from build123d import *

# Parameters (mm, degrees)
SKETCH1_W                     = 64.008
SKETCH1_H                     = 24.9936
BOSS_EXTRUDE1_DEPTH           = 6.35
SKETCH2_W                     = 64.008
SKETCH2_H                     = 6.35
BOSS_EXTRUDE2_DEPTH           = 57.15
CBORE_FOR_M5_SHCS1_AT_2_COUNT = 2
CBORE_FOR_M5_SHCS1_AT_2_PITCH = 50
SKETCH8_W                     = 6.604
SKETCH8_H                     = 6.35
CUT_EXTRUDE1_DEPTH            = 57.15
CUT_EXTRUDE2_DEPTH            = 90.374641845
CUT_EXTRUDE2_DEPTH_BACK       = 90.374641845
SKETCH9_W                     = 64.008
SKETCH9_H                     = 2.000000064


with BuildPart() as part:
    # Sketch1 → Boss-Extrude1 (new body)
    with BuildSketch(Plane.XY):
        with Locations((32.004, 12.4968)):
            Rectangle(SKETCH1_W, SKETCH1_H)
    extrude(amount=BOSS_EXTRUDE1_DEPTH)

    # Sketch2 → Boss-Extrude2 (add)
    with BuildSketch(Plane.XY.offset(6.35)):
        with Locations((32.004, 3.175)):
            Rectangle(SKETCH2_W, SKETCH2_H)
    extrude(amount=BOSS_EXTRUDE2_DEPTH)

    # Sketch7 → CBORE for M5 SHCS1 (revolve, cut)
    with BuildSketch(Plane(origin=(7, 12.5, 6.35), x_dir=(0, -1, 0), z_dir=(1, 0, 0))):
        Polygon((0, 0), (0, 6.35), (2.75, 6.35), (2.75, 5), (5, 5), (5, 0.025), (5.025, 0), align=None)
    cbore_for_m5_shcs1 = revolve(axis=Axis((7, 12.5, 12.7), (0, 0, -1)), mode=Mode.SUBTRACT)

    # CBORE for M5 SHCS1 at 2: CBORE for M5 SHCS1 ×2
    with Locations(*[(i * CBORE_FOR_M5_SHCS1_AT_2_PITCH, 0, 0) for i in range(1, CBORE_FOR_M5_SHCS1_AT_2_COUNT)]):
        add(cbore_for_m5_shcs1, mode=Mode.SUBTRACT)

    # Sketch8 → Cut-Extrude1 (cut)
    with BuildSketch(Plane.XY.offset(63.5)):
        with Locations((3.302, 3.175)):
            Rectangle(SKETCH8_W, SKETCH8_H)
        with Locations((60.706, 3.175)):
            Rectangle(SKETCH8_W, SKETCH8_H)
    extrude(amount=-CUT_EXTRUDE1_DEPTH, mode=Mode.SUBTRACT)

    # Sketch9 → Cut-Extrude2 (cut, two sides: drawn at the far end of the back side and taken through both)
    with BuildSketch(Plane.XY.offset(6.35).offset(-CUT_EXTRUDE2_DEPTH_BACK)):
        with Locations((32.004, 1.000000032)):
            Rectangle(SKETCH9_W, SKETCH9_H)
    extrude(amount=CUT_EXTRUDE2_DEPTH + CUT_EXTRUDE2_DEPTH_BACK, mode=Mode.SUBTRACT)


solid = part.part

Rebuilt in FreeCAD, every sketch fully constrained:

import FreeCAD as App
import Part
import Sketcher
Q = App.Units.Quantity

doc = App.newDocument("Part")
body = doc.addObject("PartDesign::Body", "Body")

# Sketch on XY plane
sketch1 = body.newObject("Sketcher::SketchObject", "Sketch")
sketch1.AttachmentSupport = (doc.getObject("XY_Plane"), [""])
sketch1.MapMode = "FlatFace"
sketch1.addGeometry(Part.LineSegment(App.Vector(0, 25, 0), App.Vector(0, 0, 0)), False)
sketch1.addGeometry(Part.LineSegment(App.Vector(0, 0, 0), App.Vector(64, 0, 0)), False)
sketch1.addGeometry(Part.LineSegment(App.Vector(64, 0, 0), App.Vector(64, 25, 0)), False)
sketch1.addGeometry(Part.LineSegment(App.Vector(64, 25, 0), App.Vector(0, 25, 0)), False)
sketch1.addConstraint(Sketcher.Constraint("Coincident", 0, 2, 1, 1))
sketch1.addConstraint(Sketcher.Constraint("Coincident", 1, 2, 2, 1))
sketch1.addConstraint(Sketcher.Constraint("Coincident", 2, 2, 3, 1))
sketch1.addConstraint(Sketcher.Constraint("Coincident", 3, 2, 0, 1))
sketch1.addConstraint(Sketcher.Constraint("Vertical", 0))
sketch1.addConstraint(Sketcher.Constraint("Horizontal", 1))
sketch1.addConstraint(Sketcher.Constraint("Vertical", 2))
sketch1.addConstraint(Sketcher.Constraint("Horizontal", 3))
sketch1.addConstraint(Sketcher.Constraint("Coincident", 0, 2, -1, 1))
sketch1.addConstraint(Sketcher.Constraint("DistanceX", 1, 1, 1, 2, Q("2.52 in")))
sketch1.addConstraint(Sketcher.Constraint("DistanceY", 0, 2, 0, 1, Q("0.984 in")))
pad1 = body.newObject("PartDesign::Pad", "Pad")
pad1.Profile = sketch1
pad1.Length = Q("0.25 in")

# Sketch on XY plane
sketch2 = body.newObject("Sketcher::SketchObject", "Sketch001")
sketch2.AttachmentSupport = (doc.getObject("XY_Plane"), [""])
sketch2.MapMode = "FlatFace"
sketch2.AttachmentOffset = App.Placement(App.Vector(0, 0, 0.25 * 25.4), App.Rotation())
sketch2.addGeometry(Part.LineSegment(App.Vector(0, 6, 0), App.Vector(0, 0, 0)), False)
sketch2.addGeometry(Part.LineSegment(App.Vector(0, 0, 0), App.Vector(64, 0, 0)), False)
sketch2.addGeometry(Part.LineSegment(App.Vector(64, 0, 0), App.Vector(64, 6, 0)), False)
sketch2.addGeometry(Part.LineSegment(App.Vector(64, 6, 0), App.Vector(0, 6, 0)), False)
sketch2.addConstraint(Sketcher.Constraint("Coincident", 0, 2, 1, 1))
sketch2.addConstraint(Sketcher.Constraint("Coincident", 1, 2, 2, 1))
sketch2.addConstraint(Sketcher.Constraint("Coincident", 2, 2, 3, 1))
sketch2.addConstraint(Sketcher.Constraint("Coincident", 3, 2, 0, 1))
sketch2.addConstraint(Sketcher.Constraint("Vertical", 0))
sketch2.addConstraint(Sketcher.Constraint("Horizontal", 1))
sketch2.addConstraint(Sketcher.Constraint("Vertical", 2))
sketch2.addConstraint(Sketcher.Constraint("Horizontal", 3))
sketch2.addConstraint(Sketcher.Constraint("Coincident", 0, 2, -1, 1))
sketch2.addConstraint(Sketcher.Constraint("DistanceX", 1, 1, 1, 2, Q("2.52 in")))
sketch2.addConstraint(Sketcher.Constraint("DistanceY", 0, 2, 0, 1, Q("0.25 in")))
pad2 = body.newObject("PartDesign::Pad", "Pad001")
pad2.Profile = sketch2
pad2.Length = Q("2.25 in")

# Sketch on YZ plane
sketch3 = body.newObject("Sketcher::SketchObject", "Sketch002")
sketch3.AttachmentSupport = (doc.getObject("YZ_Plane"), [""])
sketch3.MapMode = "FlatFace"
sketch3.AttachmentOffset = App.Placement(App.Vector(0, 0, 7), App.Rotation())
sketch3.addGeometry(Part.LineSegment(App.Vector(12.5, 0, 0), App.Vector(12.5, 6.35, 0)), False)
sketch3.addGeometry(Part.LineSegment(App.Vector(12.5, 6.35, 0), App.Vector(7.475, 6.35, 0)), False)
sketch3.addGeometry(Part.LineSegment(App.Vector(7.475, 6.35, 0), App.Vector(7.5, 6.325, 0)), False)
sketch3.addGeometry(Part.LineSegment(App.Vector(7.5, 6.325, 0), App.Vector(7.5, 1.35, 0)), False)
sketch3.addGeometry(Part.LineSegment(App.Vector(7.5, 1.35, 0), App.Vector(9.75, 1.35, 0)), False)
sketch3.addGeometry(Part.LineSegment(App.Vector(9.75, 1.35, 0), App.Vector(9.75, 0, 0)), False)
sketch3.addGeometry(Part.LineSegment(App.Vector(9.75, 0, 0), App.Vector(12.5, 0, 0)), False)
sketch3.addGeometry(Part.LineSegment(App.Vector(12.5, 6.35, 0), App.Vector(12.5, 0, 0)), True)  # axis
sketch3.addConstraint(Sketcher.Constraint("Coincident", 0, 2, 1, 1))
sketch3.addConstraint(Sketcher.Constraint("Coincident", 1, 2, 2, 1))
sketch3.addConstraint(Sketcher.Constraint("Coincident", 2, 2, 3, 1))
sketch3.addConstraint(Sketcher.Constraint("Coincident", 3, 2, 4, 1))
sketch3.addConstraint(Sketcher.Constraint("Coincident", 4, 2, 5, 1))
sketch3.addConstraint(Sketcher.Constraint("Coincident", 5, 2, 6, 1))
sketch3.addConstraint(Sketcher.Constraint("Coincident", 6, 2, 0, 1))
sketch3.addConstraint(Sketcher.Constraint("Vertical", 0))
sketch3.addConstraint(Sketcher.Constraint("Horizontal", 1))
sketch3.addConstraint(Sketcher.Constraint("Vertical", 3))
sketch3.addConstraint(Sketcher.Constraint("Horizontal", 4))
sketch3.addConstraint(Sketcher.Constraint("Vertical", 5))
sketch3.addConstraint(Sketcher.Constraint("Horizontal", 6))
sketch3.addConstraint(Sketcher.Constraint("Vertical", 7))
sketch3.addConstraint(Sketcher.Constraint("Coincident", 7, 1, 0, 2))
sketch3.addConstraint(Sketcher.Constraint("PointOnObject", 5, 2, -1))
sketch3.addConstraint(Sketcher.Constraint("PointOnObject", 7, 2, -1))
sketch3.addConstraint(Sketcher.Constraint("Angle", 2, Q("-45 deg")))
sketch3.addConstraint(Sketcher.Constraint("DistanceY", 0, 1, 0, 2, Q("0.25 in")))
sketch3.addConstraint(Sketcher.Constraint("DistanceX", 1, 2, 1, 1, 5.025))
sketch3.addConstraint(Sketcher.Constraint("DistanceX", 4, 1, 4, 2, 2.25))
sketch3.addConstraint(Sketcher.Constraint("DistanceX", 6, 1, 6, 2, 2.75))
sketch3.addConstraint(Sketcher.Constraint("DistanceY", 3, 2, 3, 1, 4.975))
sketch3.addConstraint(Sketcher.Constraint("DistanceX", -1, 1, 0, 2, 12.5))
groove = body.newObject("PartDesign::Groove", "Groove")
groove.Profile = sketch3
groove.ReferenceAxis = (sketch3, ["Axis0"])
groove.Angle = 360
doc.recompute()

linearpattern = body.newObject("PartDesign::LinearPattern", "LinearPattern")
linearpattern.Originals = [groove]
linearpattern.Direction = (doc.getObject("X_Axis"), [""])
linearpattern.Mode = "offset"
linearpattern.Offset = 50
linearpattern.Occurrences = 2
body.Tip = linearpattern

# Sketch on XY plane
sketch4 = body.newObject("Sketcher::SketchObject", "Sketch003")
sketch4.AttachmentSupport = (doc.getObject("XY_Plane"), [""])
sketch4.MapMode = "FlatFace"
sketch4.AttachmentOffset = App.Placement(App.Vector(0, 0, 2.5 * 25.4), App.Rotation())
sketch4.addGeometry(Part.LineSegment(App.Vector(0, 6, 0), App.Vector(0, 0, 0)), False)
sketch4.addGeometry(Part.LineSegment(App.Vector(0, 0, 0), App.Vector(7, 0, 0)), False)
sketch4.addGeometry(Part.LineSegment(App.Vector(7, 0, 0), App.Vector(7, 6, 0)), False)
sketch4.addGeometry(Part.LineSegment(App.Vector(7, 6, 0), App.Vector(0, 6, 0)), False)
sketch4.addGeometry(Part.LineSegment(App.Vector(57, 6, 0), App.Vector(57, 0, 0)), False)
sketch4.addGeometry(Part.LineSegment(App.Vector(57, 0, 0), App.Vector(64, 0, 0)), False)
sketch4.addGeometry(Part.LineSegment(App.Vector(64, 0, 0), App.Vector(64, 6, 0)), False)
sketch4.addGeometry(Part.LineSegment(App.Vector(64, 6, 0), App.Vector(57, 6, 0)), False)
sketch4.addConstraint(Sketcher.Constraint("Coincident", 0, 2, 1, 1))
sketch4.addConstraint(Sketcher.Constraint("Coincident", 1, 2, 2, 1))
sketch4.addConstraint(Sketcher.Constraint("Coincident", 2, 2, 3, 1))
sketch4.addConstraint(Sketcher.Constraint("Coincident", 3, 2, 0, 1))
sketch4.addConstraint(Sketcher.Constraint("Coincident", 4, 2, 5, 1))
sketch4.addConstraint(Sketcher.Constraint("Coincident", 5, 2, 6, 1))
sketch4.addConstraint(Sketcher.Constraint("Coincident", 6, 2, 7, 1))
sketch4.addConstraint(Sketcher.Constraint("Coincident", 7, 2, 4, 1))
sketch4.addConstraint(Sketcher.Constraint("Vertical", 0))
sketch4.addConstraint(Sketcher.Constraint("Horizontal", 1))
sketch4.addConstraint(Sketcher.Constraint("Vertical", 2))
sketch4.addConstraint(Sketcher.Constraint("Horizontal", 3))
sketch4.addConstraint(Sketcher.Constraint("Vertical", 4))
sketch4.addConstraint(Sketcher.Constraint("Horizontal", 5))
sketch4.addConstraint(Sketcher.Constraint("Vertical", 6))
sketch4.addConstraint(Sketcher.Constraint("Horizontal", 7))
sketch4.addConstraint(Sketcher.Constraint("Coincident", 0, 2, -1, 1))
sketch4.addConstraint(Sketcher.Constraint("PointOnObject", 4, 2, -1))
sketch4.addConstraint(Sketcher.Constraint("Horizontal", 3, 2, 6, 2))
sketch4.addConstraint(Sketcher.Constraint("Equal", 3, 5))
sketch4.addConstraint(Sketcher.Constraint("DistanceX", 1, 2, 4, 2, Q("2 in")))
sketch4.addConstraint(Sketcher.Constraint("DistanceX", 1, 1, 1, 2, Q("0.26 in")))
sketch4.addConstraint(Sketcher.Constraint("DistanceY", 0, 2, 0, 1, Q("0.25 in")))
pocket1 = body.newObject("PartDesign::Pocket", "Pocket")
pocket1.Profile = sketch4
pocket1.Length = Q("2.25 in")

# Sketch on XY plane
sketch5 = body.newObject("Sketcher::SketchObject", "Sketch004")
sketch5.AttachmentSupport = (doc.getObject("XY_Plane"), [""])
sketch5.MapMode = "FlatFace"
sketch5.AttachmentOffset = App.Placement(App.Vector(0, 0, 0.25 * 25.4), App.Rotation())
sketch5.addGeometry(Part.LineSegment(App.Vector(0, 2, 0), App.Vector(0, 0, 0)), False)
sketch5.addGeometry(Part.LineSegment(App.Vector(0, 0, 0), App.Vector(64, 0, 0)), False)
sketch5.addGeometry(Part.LineSegment(App.Vector(64, 0, 0), App.Vector(64, 2, 0)), False)
sketch5.addGeometry(Part.LineSegment(App.Vector(64, 2, 0), App.Vector(0, 2, 0)), False)
sketch5.addConstraint(Sketcher.Constraint("Coincident", 0, 2, 1, 1))
sketch5.addConstraint(Sketcher.Constraint("Coincident", 1, 2, 2, 1))
sketch5.addConstraint(Sketcher.Constraint("Coincident", 2, 2, 3, 1))
sketch5.addConstraint(Sketcher.Constraint("Coincident", 3, 2, 0, 1))
sketch5.addConstraint(Sketcher.Constraint("Vertical", 0))
sketch5.addConstraint(Sketcher.Constraint("Horizontal", 1))
sketch5.addConstraint(Sketcher.Constraint("Vertical", 2))
sketch5.addConstraint(Sketcher.Constraint("Horizontal", 3))
sketch5.addConstraint(Sketcher.Constraint("Coincident", 0, 2, -1, 1))
sketch5.addConstraint(Sketcher.Constraint("DistanceX", 1, 1, 1, 2, Q("2.52 in")))
sketch5.addConstraint(Sketcher.Constraint("DistanceY", 0, 2, 0, 1, 2.0))
pocket2 = body.newObject("PartDesign::Pocket", "Pocket001")
pocket2.Profile = sketch5
pocket2.Type = "ThroughAll"
pocket2.Midplane = True

doc.recompute()
